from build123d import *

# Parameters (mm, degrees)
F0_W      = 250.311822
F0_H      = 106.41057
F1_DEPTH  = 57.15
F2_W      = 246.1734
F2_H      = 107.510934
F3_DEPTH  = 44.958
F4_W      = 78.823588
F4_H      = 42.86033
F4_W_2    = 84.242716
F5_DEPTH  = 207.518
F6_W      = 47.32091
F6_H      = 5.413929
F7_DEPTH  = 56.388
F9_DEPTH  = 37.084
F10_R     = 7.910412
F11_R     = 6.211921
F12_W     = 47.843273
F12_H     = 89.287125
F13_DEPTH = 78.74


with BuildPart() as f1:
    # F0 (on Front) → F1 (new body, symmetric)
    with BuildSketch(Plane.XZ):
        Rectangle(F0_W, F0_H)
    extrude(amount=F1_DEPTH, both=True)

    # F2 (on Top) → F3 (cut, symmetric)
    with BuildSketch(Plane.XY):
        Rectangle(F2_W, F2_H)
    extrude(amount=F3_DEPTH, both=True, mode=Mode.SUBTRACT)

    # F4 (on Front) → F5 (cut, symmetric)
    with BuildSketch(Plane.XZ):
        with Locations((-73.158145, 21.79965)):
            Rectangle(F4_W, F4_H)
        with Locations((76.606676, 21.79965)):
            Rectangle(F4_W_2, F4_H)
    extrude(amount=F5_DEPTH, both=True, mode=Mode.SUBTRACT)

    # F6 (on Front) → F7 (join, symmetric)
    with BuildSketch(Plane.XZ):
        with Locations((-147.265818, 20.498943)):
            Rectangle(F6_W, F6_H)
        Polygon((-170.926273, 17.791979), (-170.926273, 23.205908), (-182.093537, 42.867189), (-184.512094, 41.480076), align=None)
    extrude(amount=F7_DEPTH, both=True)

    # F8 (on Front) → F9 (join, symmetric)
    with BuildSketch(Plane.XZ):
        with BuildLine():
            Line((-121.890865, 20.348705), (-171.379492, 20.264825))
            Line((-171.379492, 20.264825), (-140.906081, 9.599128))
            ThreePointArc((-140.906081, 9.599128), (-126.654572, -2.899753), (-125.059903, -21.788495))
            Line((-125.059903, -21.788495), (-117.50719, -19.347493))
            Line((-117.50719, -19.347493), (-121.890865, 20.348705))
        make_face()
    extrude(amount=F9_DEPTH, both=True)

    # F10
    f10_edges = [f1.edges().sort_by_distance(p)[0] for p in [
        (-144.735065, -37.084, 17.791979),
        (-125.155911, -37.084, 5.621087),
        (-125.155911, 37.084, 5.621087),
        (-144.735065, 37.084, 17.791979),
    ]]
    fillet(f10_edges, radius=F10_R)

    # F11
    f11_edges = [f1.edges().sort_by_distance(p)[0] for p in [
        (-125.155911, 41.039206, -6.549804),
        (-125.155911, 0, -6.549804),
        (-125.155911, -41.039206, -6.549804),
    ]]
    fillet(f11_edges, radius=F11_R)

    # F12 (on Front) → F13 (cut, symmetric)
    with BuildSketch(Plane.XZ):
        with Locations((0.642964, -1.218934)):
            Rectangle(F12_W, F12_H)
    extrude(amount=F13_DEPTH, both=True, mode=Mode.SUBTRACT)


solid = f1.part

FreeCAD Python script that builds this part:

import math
import FreeCAD as App
import Part
import Sketcher
from FreeCAD import Vector
Q = App.Units.Quantity


def edges_at(feature, points):
    """Names of the edges that pass closest to the given points."""
    edges = feature.Shape.Edges
    near = lambda p: min(range(len(edges)), key=lambda i: edges[i].distToShape(Part.Vertex(*p))[0])
    return sorted({f"Edge{near(p) + 1}" for p in points})


def add_polygon(sketch, points):
    """Adds a closed chain of lines whose ends are joined by coincident constraints."""
    first, n = sketch.GeometryCount, len(points)
    for a, b in zip(points, points[1:] + points[:1]):
        sketch.addGeometry(Part.LineSegment(App.Vector(*a, 0), App.Vector(*b, 0)), False)
    for i in range(n):
        sketch.addConstraint(Sketcher.Constraint("Coincident", first + i, 2, first + (i + 1) % n, 1))

doc = App.newDocument("Part")
body = doc.addObject("PartDesign::Body", "Body")

# Sketch on XZ plane
sketch1 = body.newObject("Sketcher::SketchObject", "Sketch")
sketch1.AttachmentSupport = (doc.getObject("XZ_Plane"), [""])
sketch1.MapMode = "FlatFace"
add_polygon(sketch1, [(-125.155911, 53.205285), (-125.155911, -53.205285), (125.155911, -53.205285), (125.155911, 53.205285)])  # lines 0-3
sketch1.addConstraint(Sketcher.Constraint("Vertical", 0))
sketch1.addConstraint(Sketcher.Constraint("Horizontal", 1))
sketch1.addConstraint(Sketcher.Constraint("Vertical", 2))
sketch1.addConstraint(Sketcher.Constraint("Horizontal", 3))
sketch1.addConstraint(Sketcher.Constraint("Symmetric", 0, 2, 2, 2, -1, 1))
sketch1.addConstraint(Sketcher.Constraint("DistanceX", 1, 1, 1, 2, 250.311822))
sketch1.addConstraint(Sketcher.Constraint("DistanceY", 0, 2, 0, 1, 106.41057))
pad1 = body.newObject("PartDesign::Pad", "Pad")
pad1.Profile = sketch1
pad1.Length = Q("4.5 in")
pad1.Midplane = True

# Sketch on XY plane
sketch2 = body.newObject("Sketcher::SketchObject", "Sketch001")
sketch2.AttachmentSupport = (doc.getObject("XY_Plane"), [""])
sketch2.MapMode = "FlatFace"
add_polygon(sketch2, [(-123.0867, 53.755467), (-123.0867, -53.755467), (123.0867, -53.755467), (123.0867, 53.755467)])  # lines 0-3
sketch2.addConstraint(Sketcher.Constraint("Vertical", 0))
sketch2.addConstraint(Sketcher.Constraint("Horizontal", 1))
sketch2.addConstraint(Sketcher.Constraint("Vertical", 2))
sketch2.addConstraint(Sketcher.Constraint("Horizontal", 3))
sketch2.addConstraint(Sketcher.Constraint("Symmetric", 0, 2, 2, 2, -1, 1))
sketch2.addConstraint(Sketcher.Constraint("DistanceX", 1, 1, 1, 2, 246.1734))
sketch2.addConstraint(Sketcher.Constraint("DistanceY", 0, 2, 0, 1, 107.510934))
pocket1 = body.newObject("PartDesign::Pocket", "Pocket")
pocket1.Profile = sketch2
pocket1.Length = Q("3.54 in")
pocket1.Midplane = True

# Sketch on XZ plane
sketch3 = body.newObject("Sketcher::SketchObject", "Sketch002")
sketch3.AttachmentSupport = (doc.getObject("XZ_Plane"), [""])
sketch3.MapMode = "FlatFace"
add_polygon(sketch3, [(-112.569939, 43.229815), (-112.569939, 0.369485), (-33.746351, 0.369485), (-33.746351, 43.229815)])  # lines 0-3
add_polygon(sketch3, [(34.485318, 43.229815), (34.485318, 0.369485), (118.728034, 0.369485), (118.728034, 43.229815)])  # lines 4-7
sketch3.addConstraint(Sketcher.Constraint("Vertical", 0))
sketch3.addConstraint(Sketcher.Constraint("Horizontal", 1))
sketch3.addConstraint(Sketcher.Constraint("Vertical", 2))
sketch3.addConstraint(Sketcher.Constraint("Horizontal", 3))
sketch3.addConstraint(Sketcher.Constraint("Vertical", 4))
sketch3.addConstraint(Sketcher.Constraint("Horizontal", 5))
sketch3.addConstraint(Sketcher.Constraint("Vertical", 6))
sketch3.addConstraint(Sketcher.Constraint("Horizontal", 7))
sketch3.addConstraint(Sketcher.Constraint("Horizontal", 1, 2, 4, 2))
sketch3.addConstraint(Sketcher.Constraint("Horizontal", 3, 2, 6, 2))
sketch3.addConstraint(Sketcher.Constraint("DistanceX", 1, 1, 1, 2, 78.823588))
sketch3.addConstraint(Sketcher.Constraint("DistanceY", 0, 2, 0, 1, 42.86033))
sketch3.addConstraint(Sketcher.Constraint("DistanceX", 5, 1, 5, 2, 84.242716))
sketch3.addConstraint(Sketcher.Constraint("DistanceX", 0, 2, -1, 1, 112.569939))
sketch3.addConstraint(Sketcher.Constraint("DistanceX", 1, 2, 4, 2, 68.231669))
sketch3.addConstraint(Sketcher.Constraint("DistanceY", -1, 1, 0, 2, 0.369485))
pocket2 = body.newObject("PartDesign::Pocket", "Pocket001")
pocket2.Profile = sketch3
pocket2.Length = Q("16.34 in")
pocket2.Midplane = True

# Sketch on XZ plane
sketch4 = body.newObject("Sketcher::SketchObject", "Sketch003")
sketch4.AttachmentSupport = (doc.getObject("XZ_Plane"), [""])
sketch4.MapMode = "FlatFace"
sketch4.addGeometry(Part.LineSegment(Vector(-170.926273, 17.791978, 0), Vector(-170.926273, 17.791979, 0)), False)  # 0
sketch4.addGeometry(Part.LineSegment(Vector(-170.926273, 17.791978, 0), Vector(-123.605363, 17.791978, 0)), False)  # 1
sketch4.addGeometry(Part.LineSegment(Vector(-123.605363, 17.791978, 0), Vector(-123.605363, 23.205907, 0)), False)  # 2
sketch4.addGeometry(Part.LineSegment(Vector(-123.605363, 23.205907, 0), Vector(-170.926273, 23.205907, 0)), False)  # 3
sketch4.addGeometry(Part.LineSegment(Vector(-170.926273, 23.205908, 0), Vector(-170.926273, 23.205907, 0)), False)  # 4
sketch4.addGeometry(Part.LineSegment(Vector(-170.926273, 23.205908, 0), Vector(-182.093537, 42.867189, 0)), False)  # 5
sketch4.addGeometry(Part.LineSegment(Vector(-182.093537, 42.867189, 0), Vector(-184.512094, 41.480076, 0)), False)  # 6
sketch4.addGeometry(Part.LineSegment(Vector(-184.512094, 41.480076, 0), Vector(-170.926273, 17.791979, 0)), False)  # 7
sketch4.addConstraint(Sketcher.Constraint("Coincident", 0, 1, 1, 1))
sketch4.addConstraint(Sketcher.Constraint("Coincident", 1, 2, 2, 1))
sketch4.addConstraint(Sketcher.Constraint("Coincident", 2, 2, 3, 1))
sketch4.addConstraint(Sketcher.Constraint("Coincident", 3, 2, 4, 1))
sketch4.addConstraint(Sketcher.Constraint("Coincident", 4, 2, 5, 1))
sketch4.addConstraint(Sketcher.Constraint("Coincident", 5, 2, 6, 1))
sketch4.addConstraint(Sketcher.Constraint("Coincident", 6, 2, 7, 1))
sketch4.addConstraint(Sketcher.Constraint("Coincident", 7, 2, 0, 2))
sketch4.addConstraint(Sketcher.Constraint("Horizontal", 0))
sketch4.addConstraint(Sketcher.Constraint("Horizontal", 1))
sketch4.addConstraint(Sketcher.Constraint("Vertical", 2))
sketch4.addConstraint(Sketcher.Constraint("Horizontal", 3))
sketch4.addConstraint(Sketcher.Constraint("Horizontal", 4))
sketch4.addConstraint(Sketcher.Constraint("Distance", 6, 2.7881))
sketch4.addConstraint(Sketcher.Constraint("DistanceX", 1, 1, 1, 2, 47.32091))
sketch4.addConstraint(Sketcher.Constraint("DistanceX", 3, 2, 3, 1, 47.32091))
sketch4.addConstraint(Sketcher.Constraint("DistanceY", 2, 1, 2, 2, 5.413929))
sketch4.addConstraint(Sketcher.Constraint("DistanceY", -1, 1, 0, 1, 17.791978))
sketch4.addConstraint(Sketcher.Constraint("DistanceY", -1, 1, 5, 2, 42.867189))
sketch4.addConstraint(Sketcher.Constraint("DistanceX", 4, 2, 2, 2, 47.32091))
sketch4.addConstraint(Sketcher.Constraint("DistanceX", 6, 2, 3, 2, 13.585821))
sketch4.addConstraint(Sketcher.Constraint("DistanceY", 3, 2, 6, 2, 18.274168))
sketch4.addConstraint(Sketcher.Constraint("DistanceX", 6, 2, 7, 2, 13.585821))
sketch4.addConstraint(Sketcher.Constraint("DistanceX", 0, 1, -1, 1, 170.926273))
pad2 = body.newObject("PartDesign::Pad", "Pad001")
pad2.Profile = sketch4
pad2.Length = Q("4.44 in")
pad2.Midplane = True

# Sketch on XZ plane
sketch5 = body.newObject("Sketcher::SketchObject", "Sketch004")
sketch5.AttachmentSupport = (doc.getObject("XZ_Plane"), [""])
sketch5.MapMode = "FlatFace"
sketch5.addGeometry(Part.LineSegment(Vector(-121.890865, 20.348705, 0), Vector(-171.379492, 20.264825, 0)), False)
sketch5.addGeometry(Part.LineSegment(Vector(-171.379492, 20.264825, 0), Vector(-140.906081, 9.599128, 0)), False)
sketch5.addGeometry(Part.ArcOfCircle(Part.Circle(Vector(-149.278277, -14.321429, 0), Vector(0, 0, 1), 25.343376), math.radians(-17.1357), math.radians(70.709951)), False)
sketch5.addGeometry(Part.LineSegment(Vector(-125.059903, -21.788495, 0), Vector(-117.50719, -19.347493, 0)), False)
sketch5.addGeometry(Part.LineSegment(Vector(-117.50719, -19.347493, 0), Vector(-121.890865, 20.348705, 0)), False)
sketch5.addConstraint(Sketcher.Constraint("Coincident", 0, 2, 1, 1))
sketch5.addConstraint(Sketcher.Constraint("Tangent", 1, 2, 2, 2))
sketch5.addConstraint(Sketcher.Constraint("Coincident", 2, 1, 3, 1))
sketch5.addConstraint(Sketcher.Constraint("Coincident", 3, 2, 4, 1))
sketch5.addConstraint(Sketcher.Constraint("Coincident", 4, 2, 0, 1))
sketch5.addConstraint(Sketcher.Constraint("Radius", 2, 25.343376))
sketch5.addConstraint(Sketcher.Constraint("Distance", 0, 49.488698))
sketch5.addConstraint(Sketcher.Constraint("Distance", 1, 32.286001))
sketch5.addConstraint(Sketcher.Constraint("DistanceY", 2, 1, 4, 2, 42.1372))
sketch5.addConstraint(Sketcher.Constraint("Distance", 4, 39.93751))
sketch5.addConstraint(Sketcher.Constraint("DistanceY", 2, 3, -1, 1, 14.321429))
sketch5.addConstraint(Sketcher.Constraint("DistanceX", 0, 2, -1, 1, 171.379492))
sketch5.addConstraint(Sketcher.Constraint("DistanceX", 1, 2, -1, 1, 140.906081))
sketch5.addConstraint(Sketcher.Constraint("DistanceX", 3, 2, -1, 1, 117.50719))
sketch5.addConstraint(Sketcher.Constraint("DistanceX", 1, 2, 2, 1, 15.846178))
pad3 = body.newObject("PartDesign::Pad", "Pad002")
pad3.Profile = sketch5
pad3.Length = Q("2.92 in")
pad3.Midplane = True
doc.recompute()

fillet = body.newObject("PartDesign::Fillet", "Fillet")
fillet.Base = (pad3, edges_at(pad3, [
    (-144.735, -37.084, 17.792),
    (-125.156, -37.084, 5.621),
    (-125.156, 37.084, 5.621),
    (-144.735, 37.084, 17.792),
]))
fillet.Radius = 7.910412
doc.recompute()

fillet2 = body.newObject("PartDesign::Fillet", "Fillet001")
fillet2.Base = (fillet, edges_at(fillet, [(-125.156, 0, -6.55), (-125.156, 0, -6.55), (-125.156, 0, -6.55)]))
fillet2.Radius = 6.211921

# Sketch on XZ plane
sketch6 = body.newObject("Sketcher::SketchObject", "Sketch005")
sketch6.AttachmentSupport = (doc.getObject("XZ_Plane"), [""])
sketch6.MapMode = "FlatFace"
add_polygon(sketch6, [(-23.278672, 43.424628), (-23.278672, -45.862496), (24.564601, -45.862496), (24.564601, 43.424628)])  # lines 0-3
sketch6.addConstraint(Sketcher.Constraint("Vertical", 0))
sketch6.addConstraint(Sketcher.Constraint("Horizontal", 1))
sketch6.addConstraint(Sketcher.Constraint("Vertical", 2))
sketch6.addConstraint(Sketcher.Constraint("Horizontal", 3))
sketch6.addConstraint(Sketcher.Constraint("DistanceX", -1, 1, 1, 2, 24.564601))
sketch6.addConstraint(Sketcher.Constraint("DistanceX", 1, 1, 1, 2, 47.843273))
sketch6.addConstraint(Sketcher.Constraint("DistanceY", 0, 2, 0, 1, 89.287125))
sketch6.addConstraint(Sketcher.Constraint("DistanceY", -1, 1, 2, 2, 43.424628))
pocket3 = body.newObject("PartDesign::Pocket", "Pocket002")
pocket3.Profile = sketch6
pocket3.Length = Q("6.2 in")
pocket3.Midplane = True

doc.recompute()
